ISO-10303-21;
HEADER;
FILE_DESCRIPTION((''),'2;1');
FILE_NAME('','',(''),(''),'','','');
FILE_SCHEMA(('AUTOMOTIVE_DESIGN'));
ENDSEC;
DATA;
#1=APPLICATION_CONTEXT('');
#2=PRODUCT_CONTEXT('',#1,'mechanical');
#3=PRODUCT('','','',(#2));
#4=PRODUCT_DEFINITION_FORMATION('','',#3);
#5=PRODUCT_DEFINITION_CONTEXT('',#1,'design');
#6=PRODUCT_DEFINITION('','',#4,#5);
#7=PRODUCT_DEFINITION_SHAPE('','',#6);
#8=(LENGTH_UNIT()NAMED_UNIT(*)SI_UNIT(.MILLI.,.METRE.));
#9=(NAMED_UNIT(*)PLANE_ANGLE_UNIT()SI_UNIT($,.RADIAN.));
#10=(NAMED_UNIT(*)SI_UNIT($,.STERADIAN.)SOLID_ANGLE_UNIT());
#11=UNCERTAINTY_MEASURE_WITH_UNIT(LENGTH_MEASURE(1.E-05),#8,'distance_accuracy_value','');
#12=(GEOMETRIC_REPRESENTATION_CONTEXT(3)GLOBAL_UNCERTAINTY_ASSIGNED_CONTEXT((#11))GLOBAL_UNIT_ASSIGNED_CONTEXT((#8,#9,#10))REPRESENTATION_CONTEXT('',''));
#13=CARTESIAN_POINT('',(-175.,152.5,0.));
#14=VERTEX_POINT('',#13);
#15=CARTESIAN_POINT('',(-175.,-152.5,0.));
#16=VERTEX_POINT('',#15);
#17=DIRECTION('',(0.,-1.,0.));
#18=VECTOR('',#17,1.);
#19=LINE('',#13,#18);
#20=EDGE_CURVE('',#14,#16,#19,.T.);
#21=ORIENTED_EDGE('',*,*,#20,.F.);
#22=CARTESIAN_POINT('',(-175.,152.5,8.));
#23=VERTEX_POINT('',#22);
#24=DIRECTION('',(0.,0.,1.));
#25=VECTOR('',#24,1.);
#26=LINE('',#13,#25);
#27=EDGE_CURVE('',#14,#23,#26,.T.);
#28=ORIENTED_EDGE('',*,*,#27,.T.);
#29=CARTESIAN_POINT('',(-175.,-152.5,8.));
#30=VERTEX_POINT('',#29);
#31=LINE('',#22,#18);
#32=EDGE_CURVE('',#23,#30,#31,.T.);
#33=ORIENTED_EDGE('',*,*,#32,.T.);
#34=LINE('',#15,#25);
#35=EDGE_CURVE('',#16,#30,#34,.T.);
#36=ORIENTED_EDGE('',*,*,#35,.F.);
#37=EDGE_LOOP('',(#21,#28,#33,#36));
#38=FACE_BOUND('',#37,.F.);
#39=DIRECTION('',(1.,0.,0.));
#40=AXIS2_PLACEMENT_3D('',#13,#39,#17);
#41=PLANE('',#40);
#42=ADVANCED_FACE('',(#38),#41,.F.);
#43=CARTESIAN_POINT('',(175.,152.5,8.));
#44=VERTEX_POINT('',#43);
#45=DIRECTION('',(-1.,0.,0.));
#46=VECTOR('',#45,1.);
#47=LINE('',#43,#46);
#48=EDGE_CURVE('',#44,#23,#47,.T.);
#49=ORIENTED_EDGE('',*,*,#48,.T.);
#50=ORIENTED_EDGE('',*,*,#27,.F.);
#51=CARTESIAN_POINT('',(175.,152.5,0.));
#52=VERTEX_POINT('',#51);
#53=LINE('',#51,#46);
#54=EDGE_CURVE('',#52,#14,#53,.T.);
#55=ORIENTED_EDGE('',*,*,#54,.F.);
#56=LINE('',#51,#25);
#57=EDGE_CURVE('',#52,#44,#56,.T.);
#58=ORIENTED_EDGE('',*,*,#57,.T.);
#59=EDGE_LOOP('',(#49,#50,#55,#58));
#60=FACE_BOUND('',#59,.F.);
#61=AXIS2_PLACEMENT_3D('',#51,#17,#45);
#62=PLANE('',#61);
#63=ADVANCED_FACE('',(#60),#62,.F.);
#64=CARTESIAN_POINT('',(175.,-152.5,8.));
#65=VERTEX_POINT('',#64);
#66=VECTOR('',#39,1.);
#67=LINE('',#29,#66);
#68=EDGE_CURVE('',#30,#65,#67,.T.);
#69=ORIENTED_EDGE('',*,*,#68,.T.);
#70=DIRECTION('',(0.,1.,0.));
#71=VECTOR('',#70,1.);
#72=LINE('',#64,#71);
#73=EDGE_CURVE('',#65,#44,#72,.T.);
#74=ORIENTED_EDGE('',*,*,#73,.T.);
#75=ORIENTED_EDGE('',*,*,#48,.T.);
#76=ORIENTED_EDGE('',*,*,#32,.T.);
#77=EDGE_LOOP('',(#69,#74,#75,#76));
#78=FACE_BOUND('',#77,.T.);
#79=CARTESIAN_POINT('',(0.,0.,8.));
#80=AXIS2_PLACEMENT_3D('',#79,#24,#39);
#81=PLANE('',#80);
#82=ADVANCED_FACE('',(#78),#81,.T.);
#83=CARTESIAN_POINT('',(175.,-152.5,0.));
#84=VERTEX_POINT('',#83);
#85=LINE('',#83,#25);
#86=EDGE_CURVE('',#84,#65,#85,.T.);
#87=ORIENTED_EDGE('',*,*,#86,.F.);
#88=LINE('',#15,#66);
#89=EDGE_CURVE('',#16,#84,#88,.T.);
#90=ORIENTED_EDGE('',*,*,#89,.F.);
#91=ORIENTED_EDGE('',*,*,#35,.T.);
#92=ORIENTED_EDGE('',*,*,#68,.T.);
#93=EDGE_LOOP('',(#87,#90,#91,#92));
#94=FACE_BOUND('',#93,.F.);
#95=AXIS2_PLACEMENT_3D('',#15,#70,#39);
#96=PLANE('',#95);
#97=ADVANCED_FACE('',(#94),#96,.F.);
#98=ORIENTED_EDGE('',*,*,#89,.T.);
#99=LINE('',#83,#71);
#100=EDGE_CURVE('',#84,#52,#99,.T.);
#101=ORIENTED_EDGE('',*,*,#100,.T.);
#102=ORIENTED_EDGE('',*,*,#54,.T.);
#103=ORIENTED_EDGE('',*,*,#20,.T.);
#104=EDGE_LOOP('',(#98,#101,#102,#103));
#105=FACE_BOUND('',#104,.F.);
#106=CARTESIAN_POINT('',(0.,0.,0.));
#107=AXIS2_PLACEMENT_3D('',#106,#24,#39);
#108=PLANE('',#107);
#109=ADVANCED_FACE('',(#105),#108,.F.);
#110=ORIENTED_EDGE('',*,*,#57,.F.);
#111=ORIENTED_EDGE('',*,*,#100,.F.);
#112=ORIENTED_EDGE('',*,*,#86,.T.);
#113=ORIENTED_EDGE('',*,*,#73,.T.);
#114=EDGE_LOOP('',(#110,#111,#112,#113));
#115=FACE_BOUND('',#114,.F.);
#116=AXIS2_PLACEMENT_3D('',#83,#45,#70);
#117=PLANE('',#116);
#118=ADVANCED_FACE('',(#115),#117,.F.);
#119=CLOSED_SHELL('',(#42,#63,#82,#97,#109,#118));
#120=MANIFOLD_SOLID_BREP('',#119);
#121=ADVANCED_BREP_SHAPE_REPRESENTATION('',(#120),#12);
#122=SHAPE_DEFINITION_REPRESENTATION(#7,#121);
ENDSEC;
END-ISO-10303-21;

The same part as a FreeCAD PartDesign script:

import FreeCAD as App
import Part
import Sketcher

V = App.Vector


def add_polygon(sketch, points):
    """Adds a closed chain of lines whose ends are joined by coincident constraints."""
    first, n = sketch.GeometryCount, len(points)
    for a, b in zip(points, points[1:] + points[:1]):
        sketch.addGeometry(Part.LineSegment(App.Vector(*a, 0), App.Vector(*b, 0)), False)
    for i in range(n):
        sketch.addConstraint(Sketcher.Constraint("Coincident", first + i, 2, first + (i + 1) % n, 1))

doc = App.newDocument("Part")
params = doc.addObject("Spreadsheet::Sheet", "Params")
for row, (alias, value) in enumerate([
    ("sketch1_width", "350 mm"),
    ("sketch1_height", "305 mm"),
    ("pad1_length", "8 mm"),
], start=1):
    params.set(f"A{row}", alias)
    params.set(f"B{row}", "=" + value)
    params.setAlias(f"B{row}", alias)

body = doc.addObject("PartDesign::Body", "Body")

sketch1 = body.newObject("Sketcher::SketchObject", "Sketch")
sketch1.AttachmentSupport = (doc.getObject("XY_Plane"), [""])
sketch1.MapMode = "FlatFace"
add_polygon(sketch1, [(-175, 152), (-175, -152), (175, -152), (175, 152)])
sketch1.addConstraint([
    Sketcher.Constraint("Vertical", 0),
    Sketcher.Constraint("Horizontal", 1),
    Sketcher.Constraint("Vertical", 2),
    Sketcher.Constraint("Horizontal", 3),
    Sketcher.Constraint("Symmetric", 0, 2, 2, 2, -1, 1),
    Sketcher.Constraint("DistanceX", 1, 1, 1, 2, 350.0),
    Sketcher.Constraint("DistanceY", 0, 2, 0, 1, 305.0),
])
sketch1.setExpression("Constraints[9]", "Params.sketch1_width")
sketch1.setExpression("Constraints[10]", "Params.sketch1_height")
pad1 = body.newObject("PartDesign::Pad", "Pad")
pad1.Profile = sketch1
pad1.setExpression("Length", "Params.pad1_length")

doc.recompute()
